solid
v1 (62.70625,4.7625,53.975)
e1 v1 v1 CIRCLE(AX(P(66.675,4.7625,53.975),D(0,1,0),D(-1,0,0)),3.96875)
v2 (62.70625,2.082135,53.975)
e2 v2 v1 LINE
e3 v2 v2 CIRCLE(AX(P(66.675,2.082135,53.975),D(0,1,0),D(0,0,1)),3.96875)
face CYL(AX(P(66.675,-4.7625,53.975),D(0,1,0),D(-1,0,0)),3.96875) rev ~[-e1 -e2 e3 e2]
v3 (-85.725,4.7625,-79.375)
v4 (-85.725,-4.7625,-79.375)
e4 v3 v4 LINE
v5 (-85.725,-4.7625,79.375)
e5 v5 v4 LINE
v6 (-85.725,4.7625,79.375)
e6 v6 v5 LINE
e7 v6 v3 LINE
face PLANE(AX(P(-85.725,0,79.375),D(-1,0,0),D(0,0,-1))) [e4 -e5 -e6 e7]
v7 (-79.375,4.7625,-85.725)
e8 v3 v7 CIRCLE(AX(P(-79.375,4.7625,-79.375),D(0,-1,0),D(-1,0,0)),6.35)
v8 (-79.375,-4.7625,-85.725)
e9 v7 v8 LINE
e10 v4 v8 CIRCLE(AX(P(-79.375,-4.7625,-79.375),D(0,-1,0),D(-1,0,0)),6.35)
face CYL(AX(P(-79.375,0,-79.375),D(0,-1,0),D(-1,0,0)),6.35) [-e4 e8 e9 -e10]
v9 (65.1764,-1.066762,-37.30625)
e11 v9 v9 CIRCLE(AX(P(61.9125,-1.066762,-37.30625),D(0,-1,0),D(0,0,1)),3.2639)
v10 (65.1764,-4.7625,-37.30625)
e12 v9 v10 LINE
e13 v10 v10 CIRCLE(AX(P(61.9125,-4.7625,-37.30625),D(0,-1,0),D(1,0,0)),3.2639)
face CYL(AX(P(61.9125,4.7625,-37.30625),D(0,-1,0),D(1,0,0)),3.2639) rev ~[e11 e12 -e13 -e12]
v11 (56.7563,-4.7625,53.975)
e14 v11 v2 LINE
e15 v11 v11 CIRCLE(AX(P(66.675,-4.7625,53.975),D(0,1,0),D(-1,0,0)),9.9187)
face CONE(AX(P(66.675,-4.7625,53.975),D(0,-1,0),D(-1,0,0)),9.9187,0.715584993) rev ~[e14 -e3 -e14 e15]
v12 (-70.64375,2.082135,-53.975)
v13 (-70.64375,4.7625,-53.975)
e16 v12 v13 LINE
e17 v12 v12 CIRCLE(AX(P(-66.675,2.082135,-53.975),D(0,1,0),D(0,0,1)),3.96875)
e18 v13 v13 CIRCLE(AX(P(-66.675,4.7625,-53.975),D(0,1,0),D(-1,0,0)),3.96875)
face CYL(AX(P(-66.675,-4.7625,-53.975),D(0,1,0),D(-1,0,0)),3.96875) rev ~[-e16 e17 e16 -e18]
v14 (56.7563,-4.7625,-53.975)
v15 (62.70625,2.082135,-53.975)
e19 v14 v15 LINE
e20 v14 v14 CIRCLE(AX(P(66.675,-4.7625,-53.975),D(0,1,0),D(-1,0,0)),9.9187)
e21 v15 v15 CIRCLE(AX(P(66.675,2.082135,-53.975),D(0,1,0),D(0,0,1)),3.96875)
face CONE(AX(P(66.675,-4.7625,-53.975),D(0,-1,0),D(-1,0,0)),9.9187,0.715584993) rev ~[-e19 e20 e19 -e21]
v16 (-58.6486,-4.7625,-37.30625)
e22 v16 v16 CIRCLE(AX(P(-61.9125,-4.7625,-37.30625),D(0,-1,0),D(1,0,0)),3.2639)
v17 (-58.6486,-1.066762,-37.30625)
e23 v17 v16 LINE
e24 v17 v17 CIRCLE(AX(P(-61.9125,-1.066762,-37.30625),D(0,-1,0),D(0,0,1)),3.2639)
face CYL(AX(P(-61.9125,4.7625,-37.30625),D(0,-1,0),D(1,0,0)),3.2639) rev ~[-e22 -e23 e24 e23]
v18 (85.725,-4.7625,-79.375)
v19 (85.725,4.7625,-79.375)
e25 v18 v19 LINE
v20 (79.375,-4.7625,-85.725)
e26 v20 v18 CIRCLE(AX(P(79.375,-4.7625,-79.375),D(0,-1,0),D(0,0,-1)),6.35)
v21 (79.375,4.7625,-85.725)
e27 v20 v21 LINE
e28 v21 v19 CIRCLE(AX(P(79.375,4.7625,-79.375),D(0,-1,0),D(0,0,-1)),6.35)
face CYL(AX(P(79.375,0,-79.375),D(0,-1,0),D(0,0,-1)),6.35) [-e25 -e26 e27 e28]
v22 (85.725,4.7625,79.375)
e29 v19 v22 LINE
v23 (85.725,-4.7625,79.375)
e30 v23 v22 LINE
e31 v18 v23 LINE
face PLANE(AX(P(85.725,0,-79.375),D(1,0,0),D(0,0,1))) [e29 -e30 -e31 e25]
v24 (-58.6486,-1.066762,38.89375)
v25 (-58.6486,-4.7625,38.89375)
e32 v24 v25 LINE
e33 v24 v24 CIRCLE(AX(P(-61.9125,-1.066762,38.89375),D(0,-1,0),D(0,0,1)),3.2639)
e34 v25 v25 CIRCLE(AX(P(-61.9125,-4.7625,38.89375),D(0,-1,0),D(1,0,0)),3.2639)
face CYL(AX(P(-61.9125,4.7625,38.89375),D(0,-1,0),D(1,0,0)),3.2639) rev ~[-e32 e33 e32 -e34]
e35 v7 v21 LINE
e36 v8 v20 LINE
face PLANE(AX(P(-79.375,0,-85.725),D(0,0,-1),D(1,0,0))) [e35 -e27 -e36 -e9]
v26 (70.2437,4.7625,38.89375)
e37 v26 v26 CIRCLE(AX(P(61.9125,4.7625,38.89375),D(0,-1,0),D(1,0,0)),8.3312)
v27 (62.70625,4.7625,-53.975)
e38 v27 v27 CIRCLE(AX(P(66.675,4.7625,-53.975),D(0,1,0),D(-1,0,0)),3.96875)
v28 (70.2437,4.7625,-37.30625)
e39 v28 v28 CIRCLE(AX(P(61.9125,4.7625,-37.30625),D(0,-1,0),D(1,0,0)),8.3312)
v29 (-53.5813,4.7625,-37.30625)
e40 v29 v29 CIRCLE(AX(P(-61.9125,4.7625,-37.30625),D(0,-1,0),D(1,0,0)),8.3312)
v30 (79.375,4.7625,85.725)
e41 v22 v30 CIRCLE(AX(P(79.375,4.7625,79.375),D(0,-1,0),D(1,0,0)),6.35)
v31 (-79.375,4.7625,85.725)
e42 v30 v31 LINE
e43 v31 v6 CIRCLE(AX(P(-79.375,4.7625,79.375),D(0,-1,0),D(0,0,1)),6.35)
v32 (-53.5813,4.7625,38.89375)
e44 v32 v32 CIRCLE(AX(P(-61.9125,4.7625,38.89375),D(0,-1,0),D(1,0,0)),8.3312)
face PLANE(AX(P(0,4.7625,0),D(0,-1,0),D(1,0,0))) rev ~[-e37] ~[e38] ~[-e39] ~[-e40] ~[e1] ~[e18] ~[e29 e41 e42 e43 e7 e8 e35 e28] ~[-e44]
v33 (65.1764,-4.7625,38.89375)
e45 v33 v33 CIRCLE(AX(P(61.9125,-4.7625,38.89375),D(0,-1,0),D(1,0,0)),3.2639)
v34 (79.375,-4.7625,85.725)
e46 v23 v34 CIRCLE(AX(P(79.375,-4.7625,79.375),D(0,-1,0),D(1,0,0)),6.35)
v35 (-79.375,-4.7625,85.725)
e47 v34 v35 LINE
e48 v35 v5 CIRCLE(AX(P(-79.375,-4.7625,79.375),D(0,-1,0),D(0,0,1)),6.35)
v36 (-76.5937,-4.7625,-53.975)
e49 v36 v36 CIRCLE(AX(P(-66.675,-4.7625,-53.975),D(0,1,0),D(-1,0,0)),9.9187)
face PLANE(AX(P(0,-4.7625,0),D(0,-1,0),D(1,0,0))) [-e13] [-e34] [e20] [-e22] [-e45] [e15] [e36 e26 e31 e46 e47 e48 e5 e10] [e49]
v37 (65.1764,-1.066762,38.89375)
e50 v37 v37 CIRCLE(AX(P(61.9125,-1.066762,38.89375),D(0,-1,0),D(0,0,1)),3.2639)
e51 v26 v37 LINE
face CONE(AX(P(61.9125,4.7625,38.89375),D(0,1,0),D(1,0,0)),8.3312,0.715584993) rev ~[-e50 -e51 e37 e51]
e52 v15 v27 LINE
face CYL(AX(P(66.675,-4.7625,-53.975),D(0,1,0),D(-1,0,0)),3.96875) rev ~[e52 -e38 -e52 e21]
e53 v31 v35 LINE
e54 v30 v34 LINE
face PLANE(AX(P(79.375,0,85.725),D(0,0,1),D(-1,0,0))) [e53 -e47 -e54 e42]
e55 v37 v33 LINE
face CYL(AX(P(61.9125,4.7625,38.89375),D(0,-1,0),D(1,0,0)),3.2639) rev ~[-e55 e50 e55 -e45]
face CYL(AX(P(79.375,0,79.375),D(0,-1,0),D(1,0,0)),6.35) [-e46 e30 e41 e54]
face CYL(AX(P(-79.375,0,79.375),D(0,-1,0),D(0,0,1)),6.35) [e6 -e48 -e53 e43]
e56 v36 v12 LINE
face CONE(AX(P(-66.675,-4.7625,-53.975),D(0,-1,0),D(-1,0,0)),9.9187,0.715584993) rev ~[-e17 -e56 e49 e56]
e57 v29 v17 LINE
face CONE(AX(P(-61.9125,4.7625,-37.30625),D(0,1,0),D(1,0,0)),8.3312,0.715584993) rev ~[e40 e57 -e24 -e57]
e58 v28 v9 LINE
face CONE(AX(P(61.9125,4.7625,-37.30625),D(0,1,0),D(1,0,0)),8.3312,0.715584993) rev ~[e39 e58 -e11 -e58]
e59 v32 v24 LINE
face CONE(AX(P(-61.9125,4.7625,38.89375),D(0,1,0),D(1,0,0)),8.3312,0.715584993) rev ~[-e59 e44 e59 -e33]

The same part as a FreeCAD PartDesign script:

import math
import FreeCAD as App
import Part
import Sketcher

V = App.Vector
Q = App.Units.Quantity

doc = App.newDocument("Part")
body = doc.addObject("PartDesign::Body", "Body")

# Sketch on XZ plane
sketch1 = body.newObject("Sketcher::SketchObject", "Sketch")
sketch1.AttachmentSupport = (doc.getObject("XZ_Plane"), [""])
sketch1.MapMode = "FlatFace"
sketch1.addGeometry([
    Part.ArcOfCircle(Part.Circle(V(79, 79, 0), V(0, 0, 1), 6), math.radians(0), math.radians(90)),  # 0
    Part.LineSegment(V(79, 86, 0), V(-79, 86, 0)),  # 1
    Part.ArcOfCircle(Part.Circle(V(-79, 79, 0), V(0, 0, 1), 6), math.radians(90), math.radians(180)),  # 2
    Part.LineSegment(V(-86, 79, 0), V(-86, -79, 0)),  # 3
    Part.ArcOfCircle(Part.Circle(V(-79, -79, 0), V(0, 0, 1), 6), math.radians(180), math.radians(270)),  # 4
    Part.LineSegment(V(-79, -86, 0), V(79, -86, 0)),  # 5
    Part.ArcOfCircle(Part.Circle(V(79, -79, 0), V(0, 0, 1), 6), math.radians(-90), math.radians(0)),  # 6
    Part.LineSegment(V(86, -79, 0), V(86, 79, 0)),  # 7
], False)
sketch1.addConstraint([
    Sketcher.Constraint("Tangent", 0, 2, 1, 1),
    Sketcher.Constraint("Tangent", 1, 2, 2, 1),
    Sketcher.Constraint("Tangent", 2, 2, 3, 1),
    Sketcher.Constraint("Tangent", 3, 2, 4, 1),
    Sketcher.Constraint("Tangent", 4, 2, 5, 1),
    Sketcher.Constraint("Tangent", 5, 2, 6, 1),
    Sketcher.Constraint("Tangent", 6, 2, 7, 1),
    Sketcher.Constraint("Tangent", 7, 2, 0, 1),
    Sketcher.Constraint("Horizontal", 1),
    Sketcher.Constraint("Vertical", 3),
    Sketcher.Constraint("Horizontal", 5),
    Sketcher.Constraint("Vertical", 7),
    Sketcher.Constraint("Equal", 0, 2),
    Sketcher.Constraint("Equal", 2, 4),
    Sketcher.Constraint("Equal", 4, 6),
    Sketcher.Constraint("Symmetric", 0, 3, 4, 3, -1, 1),
    Sketcher.Constraint("Equal", 5, 3),
    Sketcher.Constraint("Radius", 0, Q("0.25 in")),
    Sketcher.Constraint("DistanceX", 1, 2, 1, 1, Q("6.25 in")),
])
pad1 = body.newObject("PartDesign::Pad", "Pad")
pad1.Profile = sketch1
pad1.Length = Q("0.375 in")
pad1.Midplane = True

# Sketch on XZ plane
sketch2 = body.newObject("Sketcher::SketchObject", "Sketch001")
sketch2.AttachmentSupport = (doc.getObject("XZ_Plane"), [""])
sketch2.MapMode = "FlatFace"
sketch2.AttachmentOffset = App.Placement(V(0, 0, 0.1875 * 25.4), App.Rotation())
sketch2.addGeometry([
    Part.Circle(V(66.7, 54, 0), V(0, 0, 1), 4),
    Part.Circle(V(-66.7, -54, 0), V(0, 0, 1), 4),
    Part.Circle(V(66.7, -54, 0), V(0, 0, 1), 4),
], False)
sketch2.addConstraint([
    Sketcher.Constraint("Equal", 0, 1),
    Sketcher.Constraint("Equal", 1, 2),
    Sketcher.Constraint("Symmetric", 0, 3, 1, 3, -1, 1),
    Sketcher.Constraint("Symmetric", 1, 3, 2, 3, -2),
    Sketcher.Constraint("Diameter", 0, Q("0.3125 in")),
    Sketcher.Constraint("DistanceX", 1, 3, 0, 3, Q("5.25 in")),
    Sketcher.Constraint("DistanceY", 1, 3, 0, 3, Q("4.25 in")),
])
doc.recompute()
hole = body.newObject("PartDesign::Hole", "Hole")
hole.Profile = sketch2
hole.ThreadType = "None"
hole.Diameter = Q("0.3125 in")
hole.DepthType = "ThroughAll"
hole.HoleCutType = "Countersink"
hole.HoleCutDiameter = Q("0.781 in")
hole.HoleCutCountersinkAngle = 82

# Sketch on XZ plane
sketch3 = body.newObject("Sketcher::SketchObject", "Sketch002")
sketch3.AttachmentSupport = (doc.getObject("XZ_Plane"), [""])
sketch3.MapMode = "FlatFace"
sketch3.AttachmentOffset = App.Placement(V(0, 0, -0.1875 * 25.4), App.Rotation())
sketch3.addGeometry([
    Part.Circle(V(61.9, 38.9, 0), V(0, 0, 1), 3.3),
    Part.Circle(V(-61.9, 38.9, 0), V(0, 0, 1), 3.3),
    Part.Circle(V(-61.9, -37.3, 0), V(0, 0, 1), 3.3),
    Part.Circle(V(61.9, -37.3, 0), V(0, 0, 1), 3.3),
], False)
sketch3.addConstraint([
    Sketcher.Constraint("Equal", 0, 1),
    Sketcher.Constraint("Equal", 1, 2),
    Sketcher.Constraint("Equal", 2, 3),
    Sketcher.Constraint("Symmetric", 0, 3, 1, 3, -2),
    Sketcher.Constraint("Symmetric", 2, 3, 3, 3, -2),
    Sketcher.Constraint("Vertical", 1, 3, 2, 3),
    Sketcher.Constraint("Diameter", 0, Q("0.257 in")),
    Sketcher.Constraint("DistanceY", 2, 3, 1, 3, Q("3 in")),
    Sketcher.Constraint("DistanceX", -1, 1, 0, 3, Q("2.4375 in")),
    Sketcher.Constraint("DistanceY", -1, 1, 0, 3, Q("1.53125 in")),
])
doc.recompute()
hole2 = body.newObject("PartDesign::Hole", "Hole001")
hole2.Profile = sketch3
hole2.ThreadType = "None"
hole2.Diameter = Q("0.257 in")
hole2.DepthType = "ThroughAll"
hole2.HoleCutType = "Countersink"
hole2.HoleCutDiameter = Q("0.656 in")
hole2.HoleCutCountersinkAngle = 82
hole2.Reversed = True

doc.recompute()
